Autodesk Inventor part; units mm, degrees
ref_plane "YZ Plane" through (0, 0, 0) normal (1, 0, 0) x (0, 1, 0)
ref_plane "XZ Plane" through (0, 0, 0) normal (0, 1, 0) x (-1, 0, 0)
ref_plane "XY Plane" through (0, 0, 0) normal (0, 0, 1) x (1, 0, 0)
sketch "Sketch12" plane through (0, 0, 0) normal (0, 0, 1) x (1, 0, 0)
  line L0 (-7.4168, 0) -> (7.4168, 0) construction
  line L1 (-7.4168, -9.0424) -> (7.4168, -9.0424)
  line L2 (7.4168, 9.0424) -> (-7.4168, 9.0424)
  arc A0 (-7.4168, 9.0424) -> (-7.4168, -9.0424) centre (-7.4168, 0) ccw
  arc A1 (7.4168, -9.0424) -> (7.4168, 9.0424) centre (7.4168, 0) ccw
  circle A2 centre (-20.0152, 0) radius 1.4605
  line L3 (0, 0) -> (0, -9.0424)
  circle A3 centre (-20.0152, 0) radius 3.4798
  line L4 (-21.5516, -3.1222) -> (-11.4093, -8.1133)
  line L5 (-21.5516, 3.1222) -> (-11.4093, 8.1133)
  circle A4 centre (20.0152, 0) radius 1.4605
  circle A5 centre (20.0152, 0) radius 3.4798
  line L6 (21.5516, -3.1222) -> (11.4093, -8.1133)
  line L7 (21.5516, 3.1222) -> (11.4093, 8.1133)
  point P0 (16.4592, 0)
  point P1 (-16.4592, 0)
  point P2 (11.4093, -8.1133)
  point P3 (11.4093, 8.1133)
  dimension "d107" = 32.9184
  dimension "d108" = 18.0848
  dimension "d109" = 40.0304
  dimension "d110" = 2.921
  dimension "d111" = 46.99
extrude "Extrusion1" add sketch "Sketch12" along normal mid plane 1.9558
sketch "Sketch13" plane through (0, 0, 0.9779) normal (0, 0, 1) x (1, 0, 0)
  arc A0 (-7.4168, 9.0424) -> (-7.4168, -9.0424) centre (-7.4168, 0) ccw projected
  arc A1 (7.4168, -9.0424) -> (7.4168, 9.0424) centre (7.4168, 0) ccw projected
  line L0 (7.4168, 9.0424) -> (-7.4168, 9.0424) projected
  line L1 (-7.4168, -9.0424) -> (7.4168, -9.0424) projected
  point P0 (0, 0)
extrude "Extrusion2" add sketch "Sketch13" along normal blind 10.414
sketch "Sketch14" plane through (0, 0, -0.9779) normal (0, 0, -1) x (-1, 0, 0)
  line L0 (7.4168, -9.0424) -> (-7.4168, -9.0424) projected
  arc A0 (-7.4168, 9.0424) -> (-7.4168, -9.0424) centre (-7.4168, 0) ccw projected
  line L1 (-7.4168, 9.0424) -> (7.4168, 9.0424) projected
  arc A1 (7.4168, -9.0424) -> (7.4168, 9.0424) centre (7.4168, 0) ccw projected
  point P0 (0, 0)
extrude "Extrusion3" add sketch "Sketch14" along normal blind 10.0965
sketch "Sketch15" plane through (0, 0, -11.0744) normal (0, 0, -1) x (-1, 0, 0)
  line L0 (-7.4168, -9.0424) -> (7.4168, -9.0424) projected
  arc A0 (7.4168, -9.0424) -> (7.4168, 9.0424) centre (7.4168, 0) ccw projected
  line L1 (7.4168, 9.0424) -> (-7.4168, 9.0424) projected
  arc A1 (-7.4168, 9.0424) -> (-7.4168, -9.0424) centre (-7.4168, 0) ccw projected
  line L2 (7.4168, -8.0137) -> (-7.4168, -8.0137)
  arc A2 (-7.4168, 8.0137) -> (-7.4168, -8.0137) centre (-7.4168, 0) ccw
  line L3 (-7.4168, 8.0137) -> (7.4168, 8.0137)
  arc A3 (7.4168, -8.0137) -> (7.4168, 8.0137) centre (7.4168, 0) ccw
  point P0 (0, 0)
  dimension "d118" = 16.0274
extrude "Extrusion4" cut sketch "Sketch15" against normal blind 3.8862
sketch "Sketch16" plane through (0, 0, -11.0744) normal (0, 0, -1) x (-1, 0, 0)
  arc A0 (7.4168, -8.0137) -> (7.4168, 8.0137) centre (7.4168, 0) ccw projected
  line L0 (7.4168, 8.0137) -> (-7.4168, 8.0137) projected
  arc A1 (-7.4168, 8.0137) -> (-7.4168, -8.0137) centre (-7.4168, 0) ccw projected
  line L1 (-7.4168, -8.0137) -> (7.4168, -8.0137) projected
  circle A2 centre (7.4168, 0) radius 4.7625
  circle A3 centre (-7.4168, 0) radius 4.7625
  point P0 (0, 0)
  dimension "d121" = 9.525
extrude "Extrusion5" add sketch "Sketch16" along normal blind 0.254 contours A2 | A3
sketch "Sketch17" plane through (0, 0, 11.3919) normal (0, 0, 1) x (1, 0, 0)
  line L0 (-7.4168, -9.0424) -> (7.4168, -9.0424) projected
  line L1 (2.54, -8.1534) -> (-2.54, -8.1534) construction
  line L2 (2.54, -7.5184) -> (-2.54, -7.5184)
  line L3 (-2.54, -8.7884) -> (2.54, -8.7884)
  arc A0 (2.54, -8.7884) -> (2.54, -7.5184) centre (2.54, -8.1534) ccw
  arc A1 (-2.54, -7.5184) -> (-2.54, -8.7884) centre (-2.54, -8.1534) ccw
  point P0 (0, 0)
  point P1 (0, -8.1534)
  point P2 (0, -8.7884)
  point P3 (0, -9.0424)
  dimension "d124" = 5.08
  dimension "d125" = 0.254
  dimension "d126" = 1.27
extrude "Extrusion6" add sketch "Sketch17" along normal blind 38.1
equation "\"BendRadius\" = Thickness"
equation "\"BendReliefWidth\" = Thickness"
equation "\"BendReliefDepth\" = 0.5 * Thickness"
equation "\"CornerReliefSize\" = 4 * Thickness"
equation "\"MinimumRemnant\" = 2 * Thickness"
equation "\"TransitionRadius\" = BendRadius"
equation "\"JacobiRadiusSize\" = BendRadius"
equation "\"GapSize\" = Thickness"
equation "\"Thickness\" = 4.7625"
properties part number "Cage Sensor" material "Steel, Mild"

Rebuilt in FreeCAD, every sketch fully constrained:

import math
import FreeCAD as App
import Part
import Sketcher
Q = App.Units.Quantity

doc = App.newDocument("Part")
body = doc.addObject("PartDesign::Body", "Body")

# Sketch on XY plane
sketch1 = body.newObject("Sketcher::SketchObject", "Sketch")
sketch1.AttachmentSupport = (doc.getObject("XY_Plane"), [""])
sketch1.MapMode = "FlatFace"
sketch1.addGeometry([
    Part.ArcOfCircle(Part.Circle(App.Vector(-7.4, 0, 0), App.Vector(0, 0, 1), 9), math.radians(-116), math.radians(-90)),  # 0
    Part.LineSegment(App.Vector(-7.4, -9, 0), App.Vector(7.4, -9, 0)),  # 1
    Part.ArcOfCircle(Part.Circle(App.Vector(7.4, 0, 0), App.Vector(0, 0, 1), 9), math.radians(-90), math.radians(-64)),  # 2
    Part.LineSegment(App.Vector(11.4, -8.1, 0), App.Vector(21.6, -3.1, 0)),  # 3
    Part.ArcOfCircle(Part.Circle(App.Vector(20, 0, 0), App.Vector(0, 0, 1), 3.5), math.radians(-64), math.radians(64)),  # 4
    Part.LineSegment(App.Vector(21.6, 3.1, 0), App.Vector(11.4, 8.1, 0)),  # 5
    Part.ArcOfCircle(Part.Circle(App.Vector(7.4, 0, 0), App.Vector(0, 0, 1), 9), math.radians(64), math.radians(90)),  # 6
    Part.LineSegment(App.Vector(7.4, 9, 0), App.Vector(-7.4, 9, 0)),  # 7
    Part.ArcOfCircle(Part.Circle(App.Vector(-7.4, 0, 0), App.Vector(0, 0, 1), 9), math.radians(90), math.radians(116)),  # 8
    Part.LineSegment(App.Vector(-11.4, 8.1, 0), App.Vector(-21.6, 3.1, 0)),  # 9
    Part.ArcOfCircle(Part.Circle(App.Vector(-20, 0, 0), App.Vector(0, 0, 1), 3.5), math.radians(116), math.radians(244)),  # 10
    Part.LineSegment(App.Vector(-21.6, -3.1, 0), App.Vector(-11.4, -8.1, 0)),  # 11
    Part.Circle(App.Vector(-20, 0, 0), App.Vector(0, 0, 1), 1.5),  # 12
    Part.Circle(App.Vector(20, 0, 0), App.Vector(0, 0, 1), 1.5),  # 13
], False)
sketch1.addConstraint([
    Sketcher.Constraint("Tangent", 0, 2, 1, 1),
    Sketcher.Constraint("Tangent", 1, 2, 2, 1),
    Sketcher.Constraint("Tangent", 2, 2, 3, 1),
    Sketcher.Constraint("Tangent", 3, 2, 4, 1),
    Sketcher.Constraint("Tangent", 4, 2, 5, 1),
    Sketcher.Constraint("Tangent", 5, 2, 6, 1),
    Sketcher.Constraint("Tangent", 6, 2, 7, 1),
    Sketcher.Constraint("Tangent", 7, 2, 8, 1),
    Sketcher.Constraint("Tangent", 8, 2, 9, 1),
    Sketcher.Constraint("Tangent", 9, 2, 10, 1),
    Sketcher.Constraint("Tangent", 10, 2, 11, 1),
    Sketcher.Constraint("Tangent", 11, 2, 0, 1),
    Sketcher.Constraint("Horizontal", 1),
    Sketcher.Constraint("Horizontal", 7),
    Sketcher.Constraint("Coincident", 6, 3, 2, 3),
    Sketcher.Constraint("Coincident", 8, 3, 0, 3),
    Sketcher.Constraint("Coincident", 12, 3, 10, 3),
    Sketcher.Constraint("Coincident", 13, 3, 4, 3),
    Sketcher.Constraint("Equal", 0, 2),
    Sketcher.Constraint("Equal", 2, 6),
    Sketcher.Constraint("Equal", 4, 10),
    Sketcher.Constraint("Equal", 12, 13),
    Sketcher.Constraint("Symmetric", 0, 3, 2, 3, -1, 1),
    Sketcher.Constraint("Symmetric", 4, 3, 10, 3, -1, 1),
    Sketcher.Constraint("PointOnObject", 4, 3, -1),
    Sketcher.Constraint("Diameter", 12, Q("0.115 in")),
    Sketcher.Constraint("Radius", 0, Q("0.356 in")),
    Sketcher.Constraint("Radius", 4, Q("0.137 in")),
    Sketcher.Constraint("DistanceX", 10, 3, 4, 3, Q("1.576 in")),
    Sketcher.Constraint("DistanceX", 1, 1, 1, 2, Q("0.584 in")),
])
pad1 = body.newObject("PartDesign::Pad", "Pad")
pad1.Profile = sketch1
pad1.Length = Q("0.077 in")
pad1.Midplane = True

# Sketch on XY plane
sketch2 = body.newObject("Sketcher::SketchObject", "Sketch001")
sketch2.AttachmentSupport = (doc.getObject("XY_Plane"), [""])
sketch2.MapMode = "FlatFace"
sketch2.AttachmentOffset = App.Placement(App.Vector(0, 0, 0.0385 * 25.4), App.Rotation())
sketch2.addGeometry([
    Part.LineSegment(App.Vector(7, 9, 0), App.Vector(-7, 9, 0)),
    Part.ArcOfCircle(Part.Circle(App.Vector(-7, 0, 0), App.Vector(0, 0, 1), 9), math.radians(90), math.radians(270)),
    Part.LineSegment(App.Vector(-7, -9, 0), App.Vector(7, -9, 0)),
    Part.ArcOfCircle(Part.Circle(App.Vector(7, 0, 0), App.Vector(0, 0, 1), 9), math.radians(-90), math.radians(90)),
], False)
sketch2.addConstraint([
    Sketcher.Constraint("Tangent", 0, 2, 1, 1),
    Sketcher.Constraint("Tangent", 1, 2, 2, 1),
    Sketcher.Constraint("Tangent", 2, 2, 3, 1),
    Sketcher.Constraint("Tangent", 3, 2, 0, 1),
    Sketcher.Constraint("Horizontal", 0),
    Sketcher.Constraint("Horizontal", 2),
    Sketcher.Constraint("Symmetric", 1, 3, 3, 3, -1, 1),
    Sketcher.Constraint("Radius", 1, Q("0.356 in")),
    Sketcher.Constraint("DistanceX", 0, 2, 0, 1, Q("0.584 in")),
])
pad2 = body.newObject("PartDesign::Pad", "Pad001")
pad2.Profile = sketch2
pad2.Length = Q("0.41 in")

# Sketch on XY plane
sketch3 = body.newObject("Sketcher::SketchObject", "Sketch002")
sketch3.AttachmentSupport = (doc.getObject("XY_Plane"), [""])
sketch3.MapMode = "FlatFace"
sketch3.AttachmentOffset = App.Placement(App.Vector(0, 0, -0.0385 * 25.4), App.Rotation())
sketch3.addGeometry([
    Part.LineSegment(App.Vector(7, -9, 0), App.Vector(-7, -9, 0)),
    Part.ArcOfCircle(Part.Circle(App.Vector(-7, 0, 0), App.Vector(0, 0, 1), 9), math.radians(90), math.radians(270)),
    Part.LineSegment(App.Vector(-7, 9, 0), App.Vector(7, 9, 0)),
    Part.ArcOfCircle(Part.Circle(App.Vector(7, 0, 0), App.Vector(0, 0, 1), 9), math.radians(-90), math.radians(90)),
], False)
sketch3.addConstraint([
    Sketcher.Constraint("Tangent", 0, 2, 1, 2),
    Sketcher.Constraint("Tangent", 1, 1, 2, 1),
    Sketcher.Constraint("Tangent", 2, 2, 3, 2),
    Sketcher.Constraint("Tangent", 3, 1, 0, 1),
    Sketcher.Constraint("Horizontal", 0),
    Sketcher.Constraint("Horizontal", 2),
    Sketcher.Constraint("Symmetric", 1, 3, 3, 3, -1, 1),
    Sketcher.Constraint("Radius", 1, Q("0.356 in")),
    Sketcher.Constraint("DistanceX", 0, 2, 0, 1, Q("0.584 in")),
])
pad3 = body.newObject("PartDesign::Pad", "Pad002")
pad3.Profile = sketch3
pad3.Length = Q("0.3975 in")
pad3.Reversed = True

# Sketch on XY plane
sketch4 = body.newObject("Sketcher::SketchObject", "Sketch003")
sketch4.AttachmentSupport = (doc.getObject("XY_Plane"), [""])
sketch4.MapMode = "FlatFace"
sketch4.AttachmentOffset = App.Placement(App.Vector(0, 0, -0.436 * 25.4), App.Rotation())
sketch4.addGeometry([
    Part.ArcOfCircle(Part.Circle(App.Vector(7, 0, 0), App.Vector(0, 0, 1), 9), math.radians(-90), math.radians(90)),  # 0
    Part.LineSegment(App.Vector(7, -9, 0), App.Vector(-7, -9, 0)),  # 1
    Part.ArcOfCircle(Part.Circle(App.Vector(-7, 0, 0), App.Vector(0, 0, 1), 9), math.radians(90), math.radians(270)),  # 2
    Part.LineSegment(App.Vector(-7, 9, 0), App.Vector(7, 9, 0)),  # 3
    Part.ArcOfCircle(Part.Circle(App.Vector(-7, 0, 0), App.Vector(0, 0, 1), 8), math.radians(90), math.radians(270)),  # 4
    Part.LineSegment(App.Vector(-7, -8, 0), App.Vector(7, -8, 0)),  # 5
    Part.ArcOfCircle(Part.Circle(App.Vector(7, 0, 0), App.Vector(0, 0, 1), 8), math.radians(-90), math.radians(90)),  # 6
    Part.LineSegment(App.Vector(7, 8, 0), App.Vector(-7, 8, 0)),  # 7
], False)
sketch4.addConstraint([
    Sketcher.Constraint("Tangent", 0, 1, 1, 1),
    Sketcher.Constraint("Tangent", 1, 2, 2, 2),
    Sketcher.Constraint("Tangent", 2, 1, 3, 1),
    Sketcher.Constraint("Tangent", 3, 2, 0, 2),
    Sketcher.Constraint("Tangent", 4, 2, 5, 1),
    Sketcher.Constraint("Tangent", 5, 2, 6, 1),
    Sketcher.Constraint("Tangent", 6, 2, 7, 1),
    Sketcher.Constraint("Tangent", 7, 2, 4, 1),
    Sketcher.Constraint("Horizontal", 1),
    Sketcher.Constraint("Horizontal", 3),
    Sketcher.Constraint("Horizontal", 5),
    Sketcher.Constraint("Horizontal", 7),
    Sketcher.Constraint("Coincident", 4, 3, 2, 3),
    Sketcher.Constraint("Symmetric", 0, 3, 2, 3, -1, 1),
    Sketcher.Constraint("Vertical", 6, 3, 0, 1),
    Sketcher.Constraint("Radius", 4, Q("0.3155 in")),
    Sketcher.Constraint("Radius", 0, Q("0.356 in")),
    Sketcher.Constraint("DistanceX", 1, 2, 1, 1, Q("0.584 in")),
])
pocket1 = body.newObject("PartDesign::Pocket", "Pocket")
pocket1.Profile = sketch4
pocket1.Length = Q("0.153 in")
pocket1.Reversed = True

# Sketch on XY plane
sketch5 = body.newObject("Sketcher::SketchObject", "Sketch004")
sketch5.AttachmentSupport = (doc.getObject("XY_Plane"), [""])
sketch5.MapMode = "FlatFace"
sketch5.AttachmentOffset = App.Placement(App.Vector(0, 0, -0.436 * 25.4), App.Rotation())
sketch5.addGeometry([
    Part.Circle(App.Vector(-7.4, 0, 0), App.Vector(0, 0, 1), 4.8),
    Part.Circle(App.Vector(7.4, 0, 0), App.Vector(0, 0, 1), 4.8),
], False)
sketch5.addConstraint([
    Sketcher.Constraint("Equal", 0, 1),
    Sketcher.Constraint("Symmetric", 0, 3, 1, 3, -1, 1),
    Sketcher.Constraint("PointOnObject", 0, 3, -1),
    Sketcher.Constraint("Diameter", 0, Q("0.375 in")),
    Sketcher.Constraint("DistanceX", 0, 3, -1, 1, Q("0.292 in")),
])
pad4 = body.newObject("PartDesign::Pad", "Pad003")
pad4.Profile = sketch5
pad4.Length = Q("0.01 in")
pad4.Reversed = True

# Sketch on XY plane
sketch6 = body.newObject("Sketcher::SketchObject", "Sketch005")
sketch6.AttachmentSupport = (doc.getObject("XY_Plane"), [""])
sketch6.MapMode = "FlatFace"
sketch6.AttachmentOffset = App.Placement(App.Vector(0, 0, 0.4485 * 25.4), App.Rotation())
sketch6.addGeometry([
    Part.ArcOfCircle(Part.Circle(App.Vector(2.5, -8.2, 0), App.Vector(0, 0, 1), 0.6), math.radians(-90), math.radians(90)),
    Part.LineSegment(App.Vector(2.5, -7.5, 0), App.Vector(-2.5, -7.5, 0)),
    Part.ArcOfCircle(Part.Circle(App.Vector(-2.5, -8.2, 0), App.Vector(0, 0, 1), 0.6), math.radians(90), math.radians(270)),
    Part.LineSegment(App.Vector(-2.5, -8.8, 0), App.Vector(2.5, -8.8, 0)),
], False)
sketch6.addConstraint([
    Sketcher.Constraint("Tangent", 0, 2, 1, 1),
    Sketcher.Constraint("Tangent", 1, 2, 2, 1),
    Sketcher.Constraint("Tangent", 2, 2, 3, 1),
    Sketcher.Constraint("Tangent", 3, 2, 0, 1),
    Sketcher.Constraint("Horizontal", 1),
    Sketcher.Constraint("Horizontal", 3),
    Sketcher.Constraint("DistanceX", 1, 2, 1, 1, Q("0.2 in")),
    Sketcher.Constraint("Radius", 0, Q("0.025 in")),
    Sketcher.Constraint("DistanceX", -1, 1, 0, 3, Q("0.1 in")),
    Sketcher.Constraint("DistanceY", 0, 3, -1, 1, Q("0.321 in")),
])
pad5 = body.newObject("PartDesign::Pad", "Pad004")
pad5.Profile = sketch6
pad5.Length = Q("1.5 in")

doc.recompute()
